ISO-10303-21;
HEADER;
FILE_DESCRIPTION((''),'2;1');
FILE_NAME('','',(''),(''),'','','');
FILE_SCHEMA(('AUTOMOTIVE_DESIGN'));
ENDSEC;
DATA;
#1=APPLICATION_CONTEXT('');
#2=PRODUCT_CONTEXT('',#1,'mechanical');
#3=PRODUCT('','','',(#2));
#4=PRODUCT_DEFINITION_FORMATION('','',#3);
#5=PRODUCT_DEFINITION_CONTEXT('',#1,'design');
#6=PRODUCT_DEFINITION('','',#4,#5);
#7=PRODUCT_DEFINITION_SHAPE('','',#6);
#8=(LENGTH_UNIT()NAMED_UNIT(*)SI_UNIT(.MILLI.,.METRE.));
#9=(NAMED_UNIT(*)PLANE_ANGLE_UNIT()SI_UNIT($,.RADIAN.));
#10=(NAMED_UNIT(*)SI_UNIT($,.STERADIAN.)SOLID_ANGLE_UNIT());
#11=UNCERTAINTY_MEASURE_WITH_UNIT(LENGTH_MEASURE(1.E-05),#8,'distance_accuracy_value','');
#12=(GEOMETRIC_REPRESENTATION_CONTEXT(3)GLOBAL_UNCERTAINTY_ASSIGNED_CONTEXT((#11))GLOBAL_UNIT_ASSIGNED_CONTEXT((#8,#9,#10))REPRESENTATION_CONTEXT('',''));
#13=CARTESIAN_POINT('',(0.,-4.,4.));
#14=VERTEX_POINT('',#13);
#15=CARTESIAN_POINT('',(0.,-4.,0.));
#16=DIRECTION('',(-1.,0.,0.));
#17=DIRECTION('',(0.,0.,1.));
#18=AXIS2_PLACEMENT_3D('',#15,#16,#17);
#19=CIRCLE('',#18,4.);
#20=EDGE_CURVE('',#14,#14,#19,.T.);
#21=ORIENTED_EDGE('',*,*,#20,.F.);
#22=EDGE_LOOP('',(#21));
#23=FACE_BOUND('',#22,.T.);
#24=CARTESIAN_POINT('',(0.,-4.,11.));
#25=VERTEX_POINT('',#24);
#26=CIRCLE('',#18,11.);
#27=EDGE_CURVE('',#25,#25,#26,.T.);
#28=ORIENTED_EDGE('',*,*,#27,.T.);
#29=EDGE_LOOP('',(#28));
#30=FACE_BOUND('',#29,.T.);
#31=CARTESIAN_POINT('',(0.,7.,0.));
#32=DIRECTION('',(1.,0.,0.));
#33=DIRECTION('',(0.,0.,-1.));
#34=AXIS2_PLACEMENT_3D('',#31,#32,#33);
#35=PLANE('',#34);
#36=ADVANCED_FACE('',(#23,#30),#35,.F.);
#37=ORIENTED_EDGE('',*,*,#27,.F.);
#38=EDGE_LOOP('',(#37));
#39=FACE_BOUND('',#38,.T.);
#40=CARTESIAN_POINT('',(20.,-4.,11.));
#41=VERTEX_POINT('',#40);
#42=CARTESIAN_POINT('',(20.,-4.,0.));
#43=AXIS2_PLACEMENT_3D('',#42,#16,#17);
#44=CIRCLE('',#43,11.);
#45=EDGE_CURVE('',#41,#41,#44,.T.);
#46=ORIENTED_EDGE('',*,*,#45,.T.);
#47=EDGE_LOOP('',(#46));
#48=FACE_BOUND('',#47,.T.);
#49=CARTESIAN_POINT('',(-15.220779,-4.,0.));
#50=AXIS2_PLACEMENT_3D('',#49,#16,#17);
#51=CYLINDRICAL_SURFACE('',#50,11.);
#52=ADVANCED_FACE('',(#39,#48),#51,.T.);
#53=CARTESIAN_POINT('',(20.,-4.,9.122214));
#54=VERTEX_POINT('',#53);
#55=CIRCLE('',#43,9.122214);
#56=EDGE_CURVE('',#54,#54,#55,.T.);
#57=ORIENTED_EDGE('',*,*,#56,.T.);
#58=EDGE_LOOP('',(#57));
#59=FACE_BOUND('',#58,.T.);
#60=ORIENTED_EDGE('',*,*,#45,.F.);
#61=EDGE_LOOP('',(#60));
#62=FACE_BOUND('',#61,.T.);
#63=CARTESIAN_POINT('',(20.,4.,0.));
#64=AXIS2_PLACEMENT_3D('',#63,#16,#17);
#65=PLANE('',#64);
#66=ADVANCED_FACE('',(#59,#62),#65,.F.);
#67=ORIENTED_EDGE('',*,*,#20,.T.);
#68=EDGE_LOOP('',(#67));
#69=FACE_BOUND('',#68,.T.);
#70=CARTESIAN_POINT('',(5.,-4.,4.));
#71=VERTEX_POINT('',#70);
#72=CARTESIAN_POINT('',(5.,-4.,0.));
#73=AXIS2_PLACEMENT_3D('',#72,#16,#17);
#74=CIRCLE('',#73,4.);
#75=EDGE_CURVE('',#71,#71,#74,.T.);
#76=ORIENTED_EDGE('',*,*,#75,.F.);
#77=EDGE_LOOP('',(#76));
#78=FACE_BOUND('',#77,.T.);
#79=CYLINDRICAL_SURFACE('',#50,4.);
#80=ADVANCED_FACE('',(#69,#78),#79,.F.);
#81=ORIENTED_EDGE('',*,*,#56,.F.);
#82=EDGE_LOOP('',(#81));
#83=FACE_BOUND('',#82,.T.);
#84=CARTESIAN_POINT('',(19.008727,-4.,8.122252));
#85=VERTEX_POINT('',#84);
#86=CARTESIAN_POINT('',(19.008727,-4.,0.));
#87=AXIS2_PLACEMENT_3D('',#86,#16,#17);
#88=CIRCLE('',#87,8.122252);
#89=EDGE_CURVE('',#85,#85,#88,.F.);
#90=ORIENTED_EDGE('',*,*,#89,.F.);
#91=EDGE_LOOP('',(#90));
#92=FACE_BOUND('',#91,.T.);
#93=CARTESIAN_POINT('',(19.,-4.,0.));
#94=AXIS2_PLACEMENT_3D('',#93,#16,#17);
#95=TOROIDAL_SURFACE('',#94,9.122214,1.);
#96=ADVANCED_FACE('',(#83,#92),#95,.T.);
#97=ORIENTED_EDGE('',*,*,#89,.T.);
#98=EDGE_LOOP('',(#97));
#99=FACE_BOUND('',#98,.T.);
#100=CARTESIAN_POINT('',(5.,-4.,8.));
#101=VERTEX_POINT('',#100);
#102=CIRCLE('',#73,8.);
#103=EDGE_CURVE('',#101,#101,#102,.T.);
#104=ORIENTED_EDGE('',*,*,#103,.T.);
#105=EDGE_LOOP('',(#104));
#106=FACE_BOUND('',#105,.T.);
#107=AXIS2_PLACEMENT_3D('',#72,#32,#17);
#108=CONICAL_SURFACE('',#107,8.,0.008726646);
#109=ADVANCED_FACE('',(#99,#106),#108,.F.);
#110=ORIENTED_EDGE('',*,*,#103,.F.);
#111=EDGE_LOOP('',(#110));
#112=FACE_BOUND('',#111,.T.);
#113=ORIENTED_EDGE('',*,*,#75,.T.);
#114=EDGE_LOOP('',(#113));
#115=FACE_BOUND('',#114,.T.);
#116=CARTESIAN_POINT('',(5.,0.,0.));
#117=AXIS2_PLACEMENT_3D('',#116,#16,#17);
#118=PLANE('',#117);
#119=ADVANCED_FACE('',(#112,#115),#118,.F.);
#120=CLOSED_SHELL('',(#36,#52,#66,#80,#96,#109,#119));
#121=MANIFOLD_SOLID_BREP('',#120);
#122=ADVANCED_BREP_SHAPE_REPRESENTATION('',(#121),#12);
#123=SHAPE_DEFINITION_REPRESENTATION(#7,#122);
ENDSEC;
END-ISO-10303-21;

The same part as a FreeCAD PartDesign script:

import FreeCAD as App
import Part
import Sketcher

V = App.Vector


def edges_at(feature, points):
    """Names of the edges that pass closest to the given points."""
    edges = feature.Shape.Edges
    near = lambda p: min(range(len(edges)), key=lambda i: edges[i].distToShape(Part.Vertex(*p))[0])
    return sorted({f"Edge{near(p) + 1}" for p in points})


def faces_at(feature, points):
    """Names of the faces that lie closest to the given points."""
    faces = feature.Shape.Faces
    near = lambda p: min(range(len(faces)), key=lambda i: faces[i].distToShape(Part.Vertex(*p))[0])
    return sorted({f"Face{near(p) + 1}" for p in points})

doc = App.newDocument("Part")
params = doc.addObject("Spreadsheet::Sheet", "Params")
for row, (alias, value) in enumerate([
    ("sketch1_width", "5 mm"),
    ("sketch1_width2", "15 mm"),
    ("sketch1_height", "4 mm"),
    ("sketch1_height2", "3 mm"),
    ("revolution_angle", "360 deg"),
    ("draft_angle", "0.5 deg"),
    ("fillet_radius", "1 mm"),
], start=1):
    params.set(f"A{row}", alias)
    params.set(f"B{row}", "=" + value)
    params.setAlias(f"B{row}", alias)

body = doc.addObject("PartDesign::Body", "Body")

sketch1 = doc.addObject("Sketcher::SketchObject", "Sketch")
body.addObject(sketch1)
sketch1.AttachmentSupport = (doc.XY_Plane, [""])
sketch1.MapMode = "FlatFace"
sketch1.addGeometry(Part.LineSegment(V(0, 0, 0), V(5, 0, 0)), False)
sketch1.addGeometry(Part.LineSegment(V(5, 0, 0), V(5, 4, 0)), False)
sketch1.addGeometry(Part.LineSegment(V(5, 4, 0), V(20, 4, 0)), False)
sketch1.addGeometry(Part.LineSegment(V(20, 4, 0), V(20, 7, 0)), False)
sketch1.addGeometry(Part.LineSegment(V(20, 7, 0), V(0, 7, 0)), False)
sketch1.addGeometry(Part.LineSegment(V(0, 7, 0), V(0, 0, 0)), False)
sketch1.addGeometry(Part.LineSegment(V(0, -4, 0), V(20, -4, 0)), True)
sketch1.addConstraint(Sketcher.Constraint("Coincident", 0, 2, 1, 1))
sketch1.addConstraint(Sketcher.Constraint("Coincident", 1, 2, 2, 1))
sketch1.addConstraint(Sketcher.Constraint("Coincident", 2, 2, 3, 1))
sketch1.addConstraint(Sketcher.Constraint("Coincident", 3, 2, 4, 1))
sketch1.addConstraint(Sketcher.Constraint("Coincident", 4, 2, 5, 1))
sketch1.addConstraint(Sketcher.Constraint("Coincident", 5, 2, 0, 1))
sketch1.addConstraint(Sketcher.Constraint("Horizontal", 0))
sketch1.addConstraint(Sketcher.Constraint("Vertical", 1))
sketch1.addConstraint(Sketcher.Constraint("Horizontal", 2))
sketch1.addConstraint(Sketcher.Constraint("Vertical", 3))
sketch1.addConstraint(Sketcher.Constraint("Horizontal", 4))
sketch1.addConstraint(Sketcher.Constraint("Vertical", 5))
sketch1.addConstraint(Sketcher.Constraint("Horizontal", 6))
sketch1.addConstraint(Sketcher.Constraint("Coincident", 5, 2, -1, 1))
sketch1.addConstraint(Sketcher.Constraint("Symmetric", 2, 2, 6, 2, -1))
sketch1.addConstraint(Sketcher.Constraint("PointOnObject", 6, 1, -2))
sketch1.addConstraint(Sketcher.Constraint("DistanceX", 0, 1, 0, 2, 5.0))
sketch1.addConstraint(Sketcher.Constraint("DistanceX", 2, 1, 2, 2, 15.0))
sketch1.addConstraint(Sketcher.Constraint("DistanceY", 1, 1, 1, 2, 4.0))
sketch1.addConstraint(Sketcher.Constraint("DistanceY", 3, 1, 3, 2, 3.0))
sketch1.setExpression("Constraints[16]", "Params.sketch1_width")
sketch1.setExpression("Constraints[17]", "Params.sketch1_width2")
sketch1.setExpression("Constraints[18]", "Params.sketch1_height")
sketch1.setExpression("Constraints[19]", "Params.sketch1_height2")
revolution = doc.addObject("PartDesign::Revolution", "Revolution")
body.addObject(revolution)
revolution.Profile = sketch1
revolution.ReferenceAxis = (sketch1, ["Axis0"])
revolution.setExpression("Angle", "Params.revolution_angle")
doc.recompute()

datumplane = doc.addObject("PartDesign::Plane", "DatumPlane")
body.addObject(datumplane)
datumplane.AttachmentSupport = (doc.YZ_Plane, [""])
datumplane.MapMode = "FlatFace"
datumplane.AttachmentOffset = App.Placement(V(0, 0, 5), App.Rotation())
draft = doc.addObject("PartDesign::Draft", "Draft")
body.addObject(draft)
draft.Base = (revolution, faces_at(revolution, [(12.5, -4, -8)]))
draft.NeutralPlane = (datumplane, [""])
draft.setExpression("Angle", "Params.draft_angle")
draft.Reversed = False
doc.recompute()

fillet = doc.addObject("PartDesign::Fillet", "Fillet")
body.addObject(fillet)
fillet.Base = (draft, edges_at(draft, [(20, -4, -8.131)]))
fillet.setExpression("Radius", "Params.fillet_radius")

doc.recompute()
